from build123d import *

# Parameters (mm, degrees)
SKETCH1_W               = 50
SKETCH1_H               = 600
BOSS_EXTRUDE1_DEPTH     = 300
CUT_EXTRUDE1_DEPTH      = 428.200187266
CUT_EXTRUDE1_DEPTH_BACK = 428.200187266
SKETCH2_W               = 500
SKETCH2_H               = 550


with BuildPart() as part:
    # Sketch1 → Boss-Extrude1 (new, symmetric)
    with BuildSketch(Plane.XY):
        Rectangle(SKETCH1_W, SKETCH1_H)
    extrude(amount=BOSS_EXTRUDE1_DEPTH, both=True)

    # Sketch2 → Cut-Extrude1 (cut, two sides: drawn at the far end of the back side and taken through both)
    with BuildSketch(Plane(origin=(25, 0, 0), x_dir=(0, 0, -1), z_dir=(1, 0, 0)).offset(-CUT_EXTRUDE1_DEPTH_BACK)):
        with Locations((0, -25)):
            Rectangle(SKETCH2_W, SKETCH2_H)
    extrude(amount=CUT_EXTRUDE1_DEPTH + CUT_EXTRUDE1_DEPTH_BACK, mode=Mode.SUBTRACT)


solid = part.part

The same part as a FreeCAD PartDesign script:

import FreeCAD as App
import Part
import Sketcher
from FreeCAD import Vector

doc = App.newDocument("Part")
body = doc.addObject("PartDesign::Body", "Body")

sketch1 = body.newObject("Sketcher::SketchObject", "Sketch")
sketch1.AttachmentSupport = (doc.getObject("XY_Plane"), [""])
sketch1.MapMode = "FlatFace"
sketch1.addGeometry(Part.LineSegment(Vector(-25, 300, 0), Vector(-25, -300, 0)), False)
sketch1.addGeometry(Part.LineSegment(Vector(-25, -300, 0), Vector(25, -300, 0)), False)
sketch1.addGeometry(Part.LineSegment(Vector(25, -300, 0), Vector(25, 300, 0)), False)
sketch1.addGeometry(Part.LineSegment(Vector(25, 300, 0), Vector(-25, 300, 0)), False)
sketch1.addConstraint(Sketcher.Constraint("Coincident", 0, 2, 1, 1))
sketch1.addConstraint(Sketcher.Constraint("Coincident", 1, 2, 2, 1))
sketch1.addConstraint(Sketcher.Constraint("Coincident", 2, 2, 3, 1))
sketch1.addConstraint(Sketcher.Constraint("Coincident", 3, 2, 0, 1))
sketch1.addConstraint(Sketcher.Constraint("Vertical", 0))
sketch1.addConstraint(Sketcher.Constraint("Horizontal", 1))
sketch1.addConstraint(Sketcher.Constraint("Vertical", 2))
sketch1.addConstraint(Sketcher.Constraint("Horizontal", 3))
sketch1.addConstraint(Sketcher.Constraint("Symmetric", 0, 2, 2, 2, -1, 1))
sketch1.addConstraint(Sketcher.Constraint("DistanceX", 1, 1, 1, 2, 50.0))
sketch1.addConstraint(Sketcher.Constraint("DistanceY", 0, 2, 0, 1, 600.0))
pad1 = body.newObject("PartDesign::Pad", "Pad")
pad1.Profile = sketch1
pad1.Length = 600
pad1.Midplane = True

sketch2 = body.newObject("Sketcher::SketchObject", "Sketch001")
sketch2.AttachmentSupport = (doc.getObject("YZ_Plane"), [""])
sketch2.MapMode = "FlatFace"
sketch2.AttachmentOffset = App.Placement(Vector(0, 0, 25), App.Rotation())
sketch2.addGeometry(Part.LineSegment(Vector(250, 250, 0), Vector(-300, 250, 0)), False)
sketch2.addGeometry(Part.LineSegment(Vector(-300, 250, 0), Vector(-300, -250, 0)), False)
sketch2.addGeometry(Part.LineSegment(Vector(-300, -250, 0), Vector(250, -250, 0)), False)
sketch2.addGeometry(Part.LineSegment(Vector(250, -250, 0), Vector(250, 250, 0)), False)
sketch2.addConstraint(Sketcher.Constraint("Coincident", 0, 2, 1, 1))
sketch2.addConstraint(Sketcher.Constraint("Coincident", 1, 2, 2, 1))
sketch2.addConstraint(Sketcher.Constraint("Coincident", 2, 2, 3, 1))
sketch2.addConstraint(Sketcher.Constraint("Coincident", 3, 2, 0, 1))
sketch2.addConstraint(Sketcher.Constraint("Horizontal", 0))
sketch2.addConstraint(Sketcher.Constraint("Vertical", 1))
sketch2.addConstraint(Sketcher.Constraint("Horizontal", 2))
sketch2.addConstraint(Sketcher.Constraint("Vertical", 3))
sketch2.addConstraint(Sketcher.Constraint("DistanceX", 0, 2, 0, 1, 550.0))
sketch2.addConstraint(Sketcher.Constraint("DistanceY", 1, 2, 1, 1, 500.0))
sketch2.addConstraint(Sketcher.Constraint("DistanceX", 0, 2, -1, 1, 300.0))
sketch2.addConstraint(Sketcher.Constraint("DistanceY", -1, 1, 0, 2, 250.0))
pocket1 = body.newObject("PartDesign::Pocket", "Pocket")
pocket1.Profile = sketch2
pocket1.Type = "ThroughAll"
pocket1.Midplane = True

doc.recompute()
